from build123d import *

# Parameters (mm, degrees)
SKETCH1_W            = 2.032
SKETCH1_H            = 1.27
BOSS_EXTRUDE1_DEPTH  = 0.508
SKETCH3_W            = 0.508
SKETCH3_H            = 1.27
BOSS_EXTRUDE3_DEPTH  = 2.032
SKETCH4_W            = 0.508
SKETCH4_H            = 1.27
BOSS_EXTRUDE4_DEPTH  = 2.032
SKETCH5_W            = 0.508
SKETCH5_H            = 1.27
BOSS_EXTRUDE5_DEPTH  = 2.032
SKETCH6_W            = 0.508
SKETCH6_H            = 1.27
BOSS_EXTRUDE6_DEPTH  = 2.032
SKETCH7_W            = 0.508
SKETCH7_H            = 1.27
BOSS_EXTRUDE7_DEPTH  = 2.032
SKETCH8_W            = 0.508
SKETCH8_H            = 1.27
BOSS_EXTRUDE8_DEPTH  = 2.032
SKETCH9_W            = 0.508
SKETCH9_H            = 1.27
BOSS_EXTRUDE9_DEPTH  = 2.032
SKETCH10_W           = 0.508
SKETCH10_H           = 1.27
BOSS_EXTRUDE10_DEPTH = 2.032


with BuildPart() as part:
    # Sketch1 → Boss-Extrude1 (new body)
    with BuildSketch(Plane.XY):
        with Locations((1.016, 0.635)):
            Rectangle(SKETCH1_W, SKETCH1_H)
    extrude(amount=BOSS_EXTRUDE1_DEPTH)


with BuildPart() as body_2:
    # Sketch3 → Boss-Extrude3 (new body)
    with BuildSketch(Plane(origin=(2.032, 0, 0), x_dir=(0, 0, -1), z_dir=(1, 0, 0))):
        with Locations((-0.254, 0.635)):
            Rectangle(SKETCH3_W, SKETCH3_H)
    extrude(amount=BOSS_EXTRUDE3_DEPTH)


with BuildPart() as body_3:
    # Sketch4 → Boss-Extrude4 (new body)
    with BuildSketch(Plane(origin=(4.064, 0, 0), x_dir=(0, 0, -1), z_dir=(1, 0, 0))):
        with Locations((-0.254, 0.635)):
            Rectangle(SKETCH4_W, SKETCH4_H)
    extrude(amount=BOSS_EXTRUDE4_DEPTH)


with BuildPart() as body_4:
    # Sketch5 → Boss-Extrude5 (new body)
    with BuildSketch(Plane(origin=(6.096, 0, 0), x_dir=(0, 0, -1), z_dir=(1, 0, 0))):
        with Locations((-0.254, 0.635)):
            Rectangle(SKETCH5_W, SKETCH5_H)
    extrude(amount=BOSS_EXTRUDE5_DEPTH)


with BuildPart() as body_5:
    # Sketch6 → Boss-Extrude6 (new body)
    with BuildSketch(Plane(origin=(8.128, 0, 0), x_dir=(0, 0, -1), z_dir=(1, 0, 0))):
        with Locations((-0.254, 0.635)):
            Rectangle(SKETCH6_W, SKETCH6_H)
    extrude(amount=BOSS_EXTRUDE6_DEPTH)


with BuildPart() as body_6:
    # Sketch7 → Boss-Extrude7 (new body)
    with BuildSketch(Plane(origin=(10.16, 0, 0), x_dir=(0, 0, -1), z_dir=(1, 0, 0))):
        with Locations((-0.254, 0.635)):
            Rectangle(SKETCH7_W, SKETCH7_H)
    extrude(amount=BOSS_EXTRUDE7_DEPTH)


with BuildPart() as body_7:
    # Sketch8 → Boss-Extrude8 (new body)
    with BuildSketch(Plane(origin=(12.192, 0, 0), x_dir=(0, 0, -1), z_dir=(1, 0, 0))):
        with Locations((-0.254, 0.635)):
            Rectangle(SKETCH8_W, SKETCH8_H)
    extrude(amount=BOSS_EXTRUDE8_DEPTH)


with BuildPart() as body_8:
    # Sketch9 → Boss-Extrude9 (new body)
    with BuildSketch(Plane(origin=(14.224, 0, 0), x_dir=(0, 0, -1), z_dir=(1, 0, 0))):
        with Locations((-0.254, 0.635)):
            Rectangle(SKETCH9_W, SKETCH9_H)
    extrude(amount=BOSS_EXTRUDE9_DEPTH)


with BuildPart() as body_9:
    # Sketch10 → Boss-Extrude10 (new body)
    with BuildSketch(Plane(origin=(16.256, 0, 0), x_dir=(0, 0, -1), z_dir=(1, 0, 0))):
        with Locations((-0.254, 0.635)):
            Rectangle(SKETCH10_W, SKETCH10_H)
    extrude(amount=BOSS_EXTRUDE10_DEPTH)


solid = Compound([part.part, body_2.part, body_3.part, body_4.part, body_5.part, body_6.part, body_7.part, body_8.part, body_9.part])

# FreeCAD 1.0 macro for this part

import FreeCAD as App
import Part
import Sketcher
Q = App.Units.Quantity


def add_polygon(sketch, points):
    """Adds a closed chain of lines whose ends are joined by coincident constraints."""
    first, n = sketch.GeometryCount, len(points)
    for a, b in zip(points, points[1:] + points[:1]):
        sketch.addGeometry(Part.LineSegment(App.Vector(*a, 0), App.Vector(*b, 0)), False)
    for i in range(n):
        sketch.addConstraint(Sketcher.Constraint("Coincident", first + i, 2, first + (i + 1) % n, 1))

doc = App.newDocument("Part")
body = doc.addObject("PartDesign::Body", "Body")

sketch1 = body.newObject("Sketcher::SketchObject", "Sketch")
sketch1.AttachmentSupport = (doc.getObject("XY_Plane"), [""])
sketch1.MapMode = "FlatFace"
add_polygon(sketch1, [(0, 1.3), (0, 0), (2, 0), (2, 1.3)])
sketch1.addConstraint(Sketcher.Constraint("Vertical", 0))
sketch1.addConstraint(Sketcher.Constraint("Horizontal", 1))
sketch1.addConstraint(Sketcher.Constraint("Vertical", 2))
sketch1.addConstraint(Sketcher.Constraint("Horizontal", 3))
sketch1.addConstraint(Sketcher.Constraint("Coincident", 0, 2, -1, 1))
sketch1.addConstraint(Sketcher.Constraint("DistanceX", 1, 1, 1, 2, Q("0.08 in")))
sketch1.addConstraint(Sketcher.Constraint("DistanceY", 0, 2, 0, 1, Q("0.05 in")))
pad1 = body.newObject("PartDesign::Pad", "Pad")
pad1.Profile = sketch1
pad1.Length = Q("0.02 in")
body2 = doc.addObject("PartDesign::Body", "Body001")

sketch2 = body2.newObject("Sketcher::SketchObject", "Sketch001")
sketch2.AttachmentSupport = (doc.getObject("YZ_Plane001"), [""])
sketch2.MapMode = "FlatFace"
sketch2.AttachmentOffset = App.Placement(App.Vector(0, 0, 0.08 * 25.4), App.Rotation())
add_polygon(sketch2, [(1.3, 0.5), (0, 0.5), (0, 0), (1.3, 0)])
sketch2.addConstraint(Sketcher.Constraint("Horizontal", 0))
sketch2.addConstraint(Sketcher.Constraint("Vertical", 1))
sketch2.addConstraint(Sketcher.Constraint("Horizontal", 2))
sketch2.addConstraint(Sketcher.Constraint("Vertical", 3))
sketch2.addConstraint(Sketcher.Constraint("Coincident", 1, 2, -1, 1))
sketch2.addConstraint(Sketcher.Constraint("DistanceX", 0, 2, 0, 1, Q("0.05 in")))
sketch2.addConstraint(Sketcher.Constraint("DistanceY", 1, 2, 1, 1, Q("0.02 in")))
pad2 = body2.newObject("PartDesign::Pad", "Pad001")
pad2.Profile = sketch2
pad2.Length = Q("0.08 in")
body3 = doc.addObject("PartDesign::Body", "Body002")

sketch3 = body3.newObject("Sketcher::SketchObject", "Sketch002")
sketch3.AttachmentSupport = (doc.getObject("YZ_Plane002"), [""])
sketch3.MapMode = "FlatFace"
sketch3.AttachmentOffset = App.Placement(App.Vector(0, 0, 0.16 * 25.4), App.Rotation())
add_polygon(sketch3, [(1.3, 0.5), (0, 0.5), (0, 0), (1.3, 0)])
sketch3.addConstraint(Sketcher.Constraint("Horizontal", 0))
sketch3.addConstraint(Sketcher.Constraint("Vertical", 1))
sketch3.addConstraint(Sketcher.Constraint("Horizontal", 2))
sketch3.addConstraint(Sketcher.Constraint("Vertical", 3))
sketch3.addConstraint(Sketcher.Constraint("Coincident", 1, 2, -1, 1))
sketch3.addConstraint(Sketcher.Constraint("DistanceX", 0, 2, 0, 1, Q("0.05 in")))
sketch3.addConstraint(Sketcher.Constraint("DistanceY", 1, 2, 1, 1, Q("0.02 in")))
pad3 = body3.newObject("PartDesign::Pad", "Pad002")
pad3.Profile = sketch3
pad3.Length = Q("0.08 in")
body4 = doc.addObject("PartDesign::Body", "Body003")

sketch4 = body4.newObject("Sketcher::SketchObject", "Sketch003")
sketch4.AttachmentSupport = (doc.getObject("YZ_Plane003"), [""])
sketch4.MapMode = "FlatFace"
sketch4.AttachmentOffset = App.Placement(App.Vector(0, 0, 0.24 * 25.4), App.Rotation())
add_polygon(sketch4, [(1.3, 0.5), (0, 0.5), (0, 0), (1.3, 0)])
sketch4.addConstraint(Sketcher.Constraint("Horizontal", 0))
sketch4.addConstraint(Sketcher.Constraint("Vertical", 1))
sketch4.addConstraint(Sketcher.Constraint("Horizontal", 2))
sketch4.addConstraint(Sketcher.Constraint("Vertical", 3))
sketch4.addConstraint(Sketcher.Constraint("Coincident", 1, 2, -1, 1))
sketch4.addConstraint(Sketcher.Constraint("DistanceX", 0, 2, 0, 1, Q("0.05 in")))
sketch4.addConstraint(Sketcher.Constraint("DistanceY", 1, 2, 1, 1, Q("0.02 in")))
pad4 = body4.newObject("PartDesign::Pad", "Pad003")
pad4.Profile = sketch4
pad4.Length = Q("0.08 in")
body5 = doc.addObject("PartDesign::Body", "Body004")

sketch5 = body5.newObject("Sketcher::SketchObject", "Sketch004")
sketch5.AttachmentSupport = (doc.getObject("YZ_Plane004"), [""])
sketch5.MapMode = "FlatFace"
sketch5.AttachmentOffset = App.Placement(App.Vector(0, 0, 0.32 * 25.4), App.Rotation())
add_polygon(sketch5, [(1.3, 0.5), (0, 0.5), (0, 0), (1.3, 0)])
sketch5.addConstraint(Sketcher.Constraint("Horizontal", 0))
sketch5.addConstraint(Sketcher.Constraint("Vertical", 1))
sketch5.addConstraint(Sketcher.Constraint("Horizontal", 2))
sketch5.addConstraint(Sketcher.Constraint("Vertical", 3))
sketch5.addConstraint(Sketcher.Constraint("Coincident", 1, 2, -1, 1))
sketch5.addConstraint(Sketcher.Constraint("DistanceX", 0, 2, 0, 1, Q("0.05 in")))
sketch5.addConstraint(Sketcher.Constraint("DistanceY", 1, 2, 1, 1, Q("0.02 in")))
pad5 = body5.newObject("PartDesign::Pad", "Pad004")
pad5.Profile = sketch5
pad5.Length = Q("0.08 in")
body6 = doc.addObject("PartDesign::Body", "Body005")

sketch6 = body6.newObject("Sketcher::SketchObject", "Sketch005")
sketch6.AttachmentSupport = (doc.getObject("YZ_Plane005"), [""])
sketch6.MapMode = "FlatFace"
sketch6.AttachmentOffset = App.Placement(App.Vector(0, 0, 0.4 * 25.4), App.Rotation())
add_polygon(sketch6, [(1.3, 0.5), (0, 0.5), (0, 0), (1.3, 0)])
sketch6.addConstraint(Sketcher.Constraint("Horizontal", 0))
sketch6.addConstraint(Sketcher.Constraint("Vertical", 1))
sketch6.addConstraint(Sketcher.Constraint("Horizontal", 2))
sketch6.addConstraint(Sketcher.Constraint("Vertical", 3))
sketch6.addConstraint(Sketcher.Constraint("Coincident", 1, 2, -1, 1))
sketch6.addConstraint(Sketcher.Constraint("DistanceX", 0, 2, 0, 1, Q("0.05 in")))
sketch6.addConstraint(Sketcher.Constraint("DistanceY", 1, 2, 1, 1, Q("0.02 in")))
pad6 = body6.newObject("PartDesign::Pad", "Pad005")
pad6.Profile = sketch6
pad6.Length = Q("0.08 in")
body7 = doc.addObject("PartDesign::Body", "Body006")

sketch7 = body7.newObject("Sketcher::SketchObject", "Sketch006")
sketch7.AttachmentSupport = (doc.getObject("YZ_Plane006"), [""])
sketch7.MapMode = "FlatFace"
sketch7.AttachmentOffset = App.Placement(App.Vector(0, 0, 0.48 * 25.4), App.Rotation())
add_polygon(sketch7, [(1.3, 0.5), (0, 0.5), (0, 0), (1.3, 0)])
sketch7.addConstraint(Sketcher.Constraint("Horizontal", 0))
sketch7.addConstraint(Sketcher.Constraint("Vertical", 1))
sketch7.addConstraint(Sketcher.Constraint("Horizontal", 2))
sketch7.addConstraint(Sketcher.Constraint("Vertical", 3))
sketch7.addConstraint(Sketcher.Constraint("Coincident", 1, 2, -1, 1))
sketch7.addConstraint(Sketcher.Constraint("DistanceX", 0, 2, 0, 1, Q("0.05 in")))
sketch7.addConstraint(Sketcher.Constraint("DistanceY", 1, 2, 1, 1, Q("0.02 in")))
pad7 = body7.newObject("PartDesign::Pad", "Pad006")
pad7.Profile = sketch7
pad7.Length = Q("0.08 in")
body8 = doc.addObject("PartDesign::Body", "Body007")

sketch8 = body8.newObject("Sketcher::SketchObject", "Sketch007")
sketch8.AttachmentSupport = (doc.getObject("YZ_Plane007"), [""])
sketch8.MapMode = "FlatFace"
sketch8.AttachmentOffset = App.Placement(App.Vector(0, 0, 0.56 * 25.4), App.Rotation())
add_polygon(sketch8, [(1.3, 0.5), (0, 0.5), (0, 0), (1.3, 0)])
sketch8.addConstraint(Sketcher.Constraint("Horizontal", 0))
sketch8.addConstraint(Sketcher.Constraint("Vertical", 1))
sketch8.addConstraint(Sketcher.Constraint("Horizontal", 2))
sketch8.addConstraint(Sketcher.Constraint("Vertical", 3))
sketch8.addConstraint(Sketcher.Constraint("Coincident", 1, 2, -1, 1))
sketch8.addConstraint(Sketcher.Constraint("DistanceX", 0, 2, 0, 1, Q("0.05 in")))
sketch8.addConstraint(Sketcher.Constraint("DistanceY", 1, 2, 1, 1, Q("0.02 in")))
pad8 = body8.newObject("PartDesign::Pad", "Pad007")
pad8.Profile = sketch8
pad8.Length = Q("0.08 in")
body9 = doc.addObject("PartDesign::Body", "Body008")

sketch9 = body9.newObject("Sketcher::SketchObject", "Sketch008")
sketch9.AttachmentSupport = (doc.getObject("YZ_Plane008"), [""])
sketch9.MapMode = "FlatFace"
sketch9.AttachmentOffset = App.Placement(App.Vector(0, 0, 0.64 * 25.4), App.Rotation())
add_polygon(sketch9, [(1.3, 0.5), (0, 0.5), (0, 0), (1.3, 0)])
sketch9.addConstraint(Sketcher.Constraint("Horizontal", 0))
sketch9.addConstraint(Sketcher.Constraint("Vertical", 1))
sketch9.addConstraint(Sketcher.Constraint("Horizontal", 2))
sketch9.addConstraint(Sketcher.Constraint("Vertical", 3))
sketch9.addConstraint(Sketcher.Constraint("Coincident", 1, 2, -1, 1))
sketch9.addConstraint(Sketcher.Constraint("DistanceX", 0, 2, 0, 1, Q("0.05 in")))
sketch9.addConstraint(Sketcher.Constraint("DistanceY", 1, 2, 1, 1, Q("0.02 in")))
pad9 = body9.newObject("PartDesign::Pad", "Pad008")
pad9.Profile = sketch9
pad9.Length = Q("0.08 in")

doc.recompute()
